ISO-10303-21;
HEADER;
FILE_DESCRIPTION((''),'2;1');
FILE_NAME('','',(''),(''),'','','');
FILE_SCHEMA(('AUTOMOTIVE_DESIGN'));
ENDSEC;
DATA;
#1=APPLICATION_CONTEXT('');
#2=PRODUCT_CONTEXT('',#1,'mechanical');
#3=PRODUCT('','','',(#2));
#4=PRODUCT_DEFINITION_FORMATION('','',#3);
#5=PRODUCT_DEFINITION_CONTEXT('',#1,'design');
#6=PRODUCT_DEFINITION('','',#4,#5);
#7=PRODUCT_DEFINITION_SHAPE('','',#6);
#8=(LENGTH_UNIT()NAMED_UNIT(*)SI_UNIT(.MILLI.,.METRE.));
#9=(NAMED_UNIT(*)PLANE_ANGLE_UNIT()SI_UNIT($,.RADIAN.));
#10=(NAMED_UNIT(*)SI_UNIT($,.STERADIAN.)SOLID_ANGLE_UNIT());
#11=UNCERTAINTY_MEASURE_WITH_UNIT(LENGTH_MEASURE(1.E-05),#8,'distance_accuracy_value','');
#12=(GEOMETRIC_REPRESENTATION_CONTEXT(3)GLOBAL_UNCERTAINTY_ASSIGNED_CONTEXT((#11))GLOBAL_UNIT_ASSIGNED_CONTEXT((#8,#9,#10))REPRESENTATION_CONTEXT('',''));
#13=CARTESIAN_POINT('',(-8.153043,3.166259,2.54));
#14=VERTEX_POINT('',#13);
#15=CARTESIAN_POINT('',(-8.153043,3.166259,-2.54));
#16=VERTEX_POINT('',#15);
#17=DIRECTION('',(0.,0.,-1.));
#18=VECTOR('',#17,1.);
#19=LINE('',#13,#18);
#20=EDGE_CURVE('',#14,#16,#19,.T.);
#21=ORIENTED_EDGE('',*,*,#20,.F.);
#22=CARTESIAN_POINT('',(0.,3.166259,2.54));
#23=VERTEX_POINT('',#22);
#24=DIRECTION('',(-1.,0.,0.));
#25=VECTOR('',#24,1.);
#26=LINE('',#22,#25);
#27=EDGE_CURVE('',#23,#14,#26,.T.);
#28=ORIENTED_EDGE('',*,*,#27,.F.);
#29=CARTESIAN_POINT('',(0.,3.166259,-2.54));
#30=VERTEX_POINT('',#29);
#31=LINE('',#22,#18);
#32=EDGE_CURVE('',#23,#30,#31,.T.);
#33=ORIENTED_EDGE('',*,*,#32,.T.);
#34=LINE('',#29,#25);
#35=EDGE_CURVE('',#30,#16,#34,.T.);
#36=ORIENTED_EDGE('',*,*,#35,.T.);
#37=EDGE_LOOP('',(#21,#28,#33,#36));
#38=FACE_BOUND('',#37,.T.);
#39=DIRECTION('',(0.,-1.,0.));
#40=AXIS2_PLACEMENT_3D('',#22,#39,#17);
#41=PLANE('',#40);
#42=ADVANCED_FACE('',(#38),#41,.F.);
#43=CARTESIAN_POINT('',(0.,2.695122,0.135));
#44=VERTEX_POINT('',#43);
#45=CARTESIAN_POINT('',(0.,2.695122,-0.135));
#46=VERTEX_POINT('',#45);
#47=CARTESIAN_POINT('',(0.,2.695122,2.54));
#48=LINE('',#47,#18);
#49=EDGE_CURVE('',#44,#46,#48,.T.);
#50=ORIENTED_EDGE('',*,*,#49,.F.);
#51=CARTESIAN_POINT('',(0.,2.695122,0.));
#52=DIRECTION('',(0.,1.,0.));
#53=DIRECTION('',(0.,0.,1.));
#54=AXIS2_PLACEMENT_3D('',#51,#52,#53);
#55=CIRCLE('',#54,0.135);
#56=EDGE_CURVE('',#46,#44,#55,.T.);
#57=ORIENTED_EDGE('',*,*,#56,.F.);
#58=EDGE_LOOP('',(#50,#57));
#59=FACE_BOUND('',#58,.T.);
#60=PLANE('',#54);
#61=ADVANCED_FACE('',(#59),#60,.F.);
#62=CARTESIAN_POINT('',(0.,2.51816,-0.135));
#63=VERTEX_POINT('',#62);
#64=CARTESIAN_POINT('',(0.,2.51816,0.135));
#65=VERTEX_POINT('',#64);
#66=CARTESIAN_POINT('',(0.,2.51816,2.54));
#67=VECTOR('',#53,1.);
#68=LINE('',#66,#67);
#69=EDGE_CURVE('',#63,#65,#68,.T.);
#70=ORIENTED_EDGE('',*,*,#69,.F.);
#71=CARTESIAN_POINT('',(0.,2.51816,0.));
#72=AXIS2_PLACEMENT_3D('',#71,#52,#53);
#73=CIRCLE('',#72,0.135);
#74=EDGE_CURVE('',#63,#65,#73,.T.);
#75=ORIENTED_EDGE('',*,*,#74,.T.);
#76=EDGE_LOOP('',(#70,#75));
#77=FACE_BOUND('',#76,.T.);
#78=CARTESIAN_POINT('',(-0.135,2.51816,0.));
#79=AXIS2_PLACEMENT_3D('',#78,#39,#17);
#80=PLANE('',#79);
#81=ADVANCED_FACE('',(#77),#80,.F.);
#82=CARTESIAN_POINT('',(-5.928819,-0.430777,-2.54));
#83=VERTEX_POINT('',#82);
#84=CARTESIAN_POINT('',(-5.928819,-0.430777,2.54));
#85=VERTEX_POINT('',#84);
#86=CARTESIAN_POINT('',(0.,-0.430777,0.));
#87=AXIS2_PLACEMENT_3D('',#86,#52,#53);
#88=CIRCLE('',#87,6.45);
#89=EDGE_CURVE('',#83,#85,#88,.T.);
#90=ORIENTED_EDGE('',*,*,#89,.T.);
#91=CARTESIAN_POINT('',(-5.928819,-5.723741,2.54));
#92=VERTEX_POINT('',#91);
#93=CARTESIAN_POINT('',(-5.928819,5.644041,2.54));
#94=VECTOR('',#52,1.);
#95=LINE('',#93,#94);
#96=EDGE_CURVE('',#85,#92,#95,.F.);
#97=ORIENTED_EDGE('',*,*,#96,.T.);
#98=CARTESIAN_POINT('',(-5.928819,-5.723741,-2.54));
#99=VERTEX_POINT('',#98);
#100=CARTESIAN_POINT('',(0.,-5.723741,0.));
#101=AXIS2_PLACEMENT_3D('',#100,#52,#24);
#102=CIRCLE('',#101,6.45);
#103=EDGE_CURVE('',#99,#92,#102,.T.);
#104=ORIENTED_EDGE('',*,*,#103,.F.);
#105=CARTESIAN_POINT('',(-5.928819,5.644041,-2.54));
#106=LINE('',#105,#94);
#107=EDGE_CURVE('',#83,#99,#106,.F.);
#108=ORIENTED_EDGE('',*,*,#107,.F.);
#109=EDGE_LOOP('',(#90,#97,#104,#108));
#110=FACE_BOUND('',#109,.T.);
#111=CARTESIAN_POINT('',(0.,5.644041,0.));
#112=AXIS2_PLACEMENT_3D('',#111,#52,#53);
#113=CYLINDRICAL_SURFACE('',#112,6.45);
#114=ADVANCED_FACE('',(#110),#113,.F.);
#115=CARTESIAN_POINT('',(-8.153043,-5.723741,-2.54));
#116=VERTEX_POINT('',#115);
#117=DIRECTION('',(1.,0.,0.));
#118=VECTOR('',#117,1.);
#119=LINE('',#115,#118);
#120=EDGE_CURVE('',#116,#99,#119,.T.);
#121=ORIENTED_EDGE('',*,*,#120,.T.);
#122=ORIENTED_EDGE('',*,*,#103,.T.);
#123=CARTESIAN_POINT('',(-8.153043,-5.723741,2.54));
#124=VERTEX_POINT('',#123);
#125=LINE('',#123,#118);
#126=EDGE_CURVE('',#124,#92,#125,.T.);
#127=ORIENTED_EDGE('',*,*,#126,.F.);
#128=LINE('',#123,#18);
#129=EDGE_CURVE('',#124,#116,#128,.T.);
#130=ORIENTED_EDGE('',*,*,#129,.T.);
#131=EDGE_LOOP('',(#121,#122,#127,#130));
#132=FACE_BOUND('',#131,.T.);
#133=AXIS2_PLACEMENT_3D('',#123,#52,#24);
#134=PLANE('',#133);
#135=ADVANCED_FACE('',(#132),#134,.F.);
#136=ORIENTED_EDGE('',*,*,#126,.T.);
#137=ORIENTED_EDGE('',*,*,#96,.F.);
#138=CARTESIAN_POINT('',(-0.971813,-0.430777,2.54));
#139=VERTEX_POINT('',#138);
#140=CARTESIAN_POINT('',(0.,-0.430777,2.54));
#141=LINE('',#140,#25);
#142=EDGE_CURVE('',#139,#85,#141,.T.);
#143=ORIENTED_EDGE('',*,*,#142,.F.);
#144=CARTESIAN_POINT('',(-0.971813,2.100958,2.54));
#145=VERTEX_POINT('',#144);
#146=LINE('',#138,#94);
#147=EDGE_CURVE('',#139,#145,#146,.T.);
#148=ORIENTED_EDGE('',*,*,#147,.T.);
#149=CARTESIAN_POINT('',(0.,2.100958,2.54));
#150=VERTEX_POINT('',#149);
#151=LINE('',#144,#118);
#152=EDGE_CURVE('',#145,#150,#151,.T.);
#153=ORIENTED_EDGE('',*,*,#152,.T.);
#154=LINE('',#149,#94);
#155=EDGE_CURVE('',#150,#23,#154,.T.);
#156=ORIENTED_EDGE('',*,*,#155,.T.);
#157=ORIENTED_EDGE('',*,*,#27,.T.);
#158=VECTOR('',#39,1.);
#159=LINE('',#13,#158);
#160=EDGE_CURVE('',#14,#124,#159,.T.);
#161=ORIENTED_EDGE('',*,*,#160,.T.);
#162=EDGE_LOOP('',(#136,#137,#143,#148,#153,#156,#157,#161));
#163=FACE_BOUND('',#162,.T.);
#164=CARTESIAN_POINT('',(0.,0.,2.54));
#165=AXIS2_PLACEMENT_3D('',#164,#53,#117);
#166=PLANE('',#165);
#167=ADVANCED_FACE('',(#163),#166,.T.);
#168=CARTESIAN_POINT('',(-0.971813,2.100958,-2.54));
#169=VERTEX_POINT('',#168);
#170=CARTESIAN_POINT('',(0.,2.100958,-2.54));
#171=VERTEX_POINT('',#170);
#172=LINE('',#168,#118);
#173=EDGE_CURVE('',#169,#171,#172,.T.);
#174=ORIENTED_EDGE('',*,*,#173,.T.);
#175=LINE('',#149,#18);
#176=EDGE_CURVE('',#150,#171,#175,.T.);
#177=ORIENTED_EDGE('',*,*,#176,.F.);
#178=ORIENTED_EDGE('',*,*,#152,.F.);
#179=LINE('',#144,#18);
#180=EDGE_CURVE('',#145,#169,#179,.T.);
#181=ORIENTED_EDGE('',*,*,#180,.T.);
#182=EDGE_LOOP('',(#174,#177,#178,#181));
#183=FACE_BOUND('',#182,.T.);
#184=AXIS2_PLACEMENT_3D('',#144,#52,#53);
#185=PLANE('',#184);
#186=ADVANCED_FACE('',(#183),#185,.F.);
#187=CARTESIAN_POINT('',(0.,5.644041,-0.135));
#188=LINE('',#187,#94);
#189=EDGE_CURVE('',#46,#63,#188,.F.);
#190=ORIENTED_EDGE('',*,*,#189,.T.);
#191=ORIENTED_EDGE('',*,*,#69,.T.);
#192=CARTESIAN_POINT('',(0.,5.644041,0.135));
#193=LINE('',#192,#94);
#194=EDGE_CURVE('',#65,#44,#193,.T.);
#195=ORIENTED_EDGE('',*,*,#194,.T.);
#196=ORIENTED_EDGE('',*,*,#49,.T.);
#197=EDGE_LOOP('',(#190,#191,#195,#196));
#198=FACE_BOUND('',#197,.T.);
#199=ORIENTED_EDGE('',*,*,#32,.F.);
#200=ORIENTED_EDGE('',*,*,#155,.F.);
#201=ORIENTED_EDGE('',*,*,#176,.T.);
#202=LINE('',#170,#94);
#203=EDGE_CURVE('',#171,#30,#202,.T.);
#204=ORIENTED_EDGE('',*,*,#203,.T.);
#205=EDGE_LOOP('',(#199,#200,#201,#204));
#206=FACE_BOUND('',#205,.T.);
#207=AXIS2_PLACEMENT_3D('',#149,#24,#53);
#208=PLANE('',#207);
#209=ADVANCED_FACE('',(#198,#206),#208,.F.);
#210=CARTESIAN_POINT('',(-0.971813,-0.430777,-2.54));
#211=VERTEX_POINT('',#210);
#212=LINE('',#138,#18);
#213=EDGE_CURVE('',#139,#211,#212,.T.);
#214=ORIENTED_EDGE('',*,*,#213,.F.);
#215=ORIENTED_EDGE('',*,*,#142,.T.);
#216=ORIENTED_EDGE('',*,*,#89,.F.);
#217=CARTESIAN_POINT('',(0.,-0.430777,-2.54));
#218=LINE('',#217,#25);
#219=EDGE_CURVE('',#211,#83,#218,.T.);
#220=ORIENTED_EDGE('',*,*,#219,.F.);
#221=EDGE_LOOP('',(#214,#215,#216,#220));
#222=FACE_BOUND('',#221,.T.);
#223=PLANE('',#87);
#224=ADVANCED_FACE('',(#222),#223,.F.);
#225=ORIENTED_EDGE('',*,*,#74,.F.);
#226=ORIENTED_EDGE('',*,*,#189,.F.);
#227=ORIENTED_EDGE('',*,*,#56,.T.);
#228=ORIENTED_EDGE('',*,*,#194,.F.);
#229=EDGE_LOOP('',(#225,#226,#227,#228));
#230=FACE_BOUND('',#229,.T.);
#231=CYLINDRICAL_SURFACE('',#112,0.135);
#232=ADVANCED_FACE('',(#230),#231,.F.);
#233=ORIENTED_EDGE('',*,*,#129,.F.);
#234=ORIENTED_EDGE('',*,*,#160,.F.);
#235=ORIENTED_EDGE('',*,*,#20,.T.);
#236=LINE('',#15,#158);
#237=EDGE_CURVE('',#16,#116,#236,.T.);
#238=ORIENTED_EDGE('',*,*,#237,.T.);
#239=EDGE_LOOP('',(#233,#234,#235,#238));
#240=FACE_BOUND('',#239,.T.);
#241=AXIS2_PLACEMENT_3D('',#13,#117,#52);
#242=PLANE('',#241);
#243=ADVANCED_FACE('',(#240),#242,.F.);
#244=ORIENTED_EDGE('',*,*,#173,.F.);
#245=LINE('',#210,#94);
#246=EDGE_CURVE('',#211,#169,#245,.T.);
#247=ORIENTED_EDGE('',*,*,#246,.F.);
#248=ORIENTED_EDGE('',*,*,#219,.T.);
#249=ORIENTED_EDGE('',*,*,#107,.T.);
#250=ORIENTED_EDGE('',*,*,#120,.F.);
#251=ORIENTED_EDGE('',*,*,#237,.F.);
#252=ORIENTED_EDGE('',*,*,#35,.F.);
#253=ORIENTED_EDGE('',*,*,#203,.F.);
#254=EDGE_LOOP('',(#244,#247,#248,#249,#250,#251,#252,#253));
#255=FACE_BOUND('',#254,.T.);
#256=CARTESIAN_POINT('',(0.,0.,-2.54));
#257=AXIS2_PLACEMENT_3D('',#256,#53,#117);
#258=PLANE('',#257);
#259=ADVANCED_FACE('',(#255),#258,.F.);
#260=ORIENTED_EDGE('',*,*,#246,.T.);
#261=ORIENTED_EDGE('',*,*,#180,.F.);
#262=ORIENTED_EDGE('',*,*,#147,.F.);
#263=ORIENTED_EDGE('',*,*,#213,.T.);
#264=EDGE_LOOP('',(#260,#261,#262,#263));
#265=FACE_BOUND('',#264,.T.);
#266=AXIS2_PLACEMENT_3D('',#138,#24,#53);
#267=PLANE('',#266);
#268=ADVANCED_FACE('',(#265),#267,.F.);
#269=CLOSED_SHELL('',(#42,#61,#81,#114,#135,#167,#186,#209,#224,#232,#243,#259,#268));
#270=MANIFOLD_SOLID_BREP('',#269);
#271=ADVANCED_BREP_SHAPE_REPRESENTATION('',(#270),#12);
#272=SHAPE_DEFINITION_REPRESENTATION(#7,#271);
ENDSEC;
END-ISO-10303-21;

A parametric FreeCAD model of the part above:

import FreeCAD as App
import Part
import Sketcher
Q = App.Units.Quantity

doc = App.newDocument("Part")
params = doc.addObject("Spreadsheet::Sheet", "Params")
for row, (alias, value) in enumerate([
    ("sketch1_height", "0.35 in"),
    ("pad1_length", "0.2 in"),
    ("groove_angle", "360 deg"),
], start=1):
    params.set(f"A{row}", alias)
    params.set(f"B{row}", "=" + value)
    params.setAlias(f"B{row}", alias)

body = doc.addObject("PartDesign::Body", "Body")

# Sketch on XY plane
sketch1 = body.newObject("Sketcher::SketchObject", "Sketch")
sketch1.AttachmentSupport = (doc.getObject("XY_Plane"), [""])
sketch1.MapMode = "FlatFace"
sketch1.addGeometry(Part.LineSegment(App.Vector(0, 3.166259, 0), App.Vector(-8.153043, 3.166259, 0)), False)
sketch1.addGeometry(Part.LineSegment(App.Vector(-8.153043, 3.166259, 0), App.Vector(-8.153043, -5.723741, 0)), False)
sketch1.addGeometry(Part.LineSegment(App.Vector(-8.153043, -5.723741, 0), App.Vector(0, -5.723741, 0)), False)
sketch1.addGeometry(Part.LineSegment(App.Vector(0, -5.723741, 0), App.Vector(0, -0.430777, 0)), False)
sketch1.addGeometry(Part.LineSegment(App.Vector(0, -0.430777, 0), App.Vector(-0.971813, -0.430777, 0)), False)
sketch1.addGeometry(Part.LineSegment(App.Vector(-0.971813, -0.430777, 0), App.Vector(-0.971813, 2.100958, 0)), False)
sketch1.addGeometry(Part.LineSegment(App.Vector(-0.971813, 2.100958, 0), App.Vector(0, 2.100958, 0)), False)
sketch1.addGeometry(Part.LineSegment(App.Vector(0, 2.100958, 0), App.Vector(0, 3.166259, 0)), False)
sketch1.addConstraint(Sketcher.Constraint("Coincident", 0, 2, 1, 1))
sketch1.addConstraint(Sketcher.Constraint("Coincident", 1, 2, 2, 1))
sketch1.addConstraint(Sketcher.Constraint("Coincident", 2, 2, 3, 1))
sketch1.addConstraint(Sketcher.Constraint("Coincident", 3, 2, 4, 1))
sketch1.addConstraint(Sketcher.Constraint("Coincident", 4, 2, 5, 1))
sketch1.addConstraint(Sketcher.Constraint("Coincident", 5, 2, 6, 1))
sketch1.addConstraint(Sketcher.Constraint("Coincident", 6, 2, 7, 1))
sketch1.addConstraint(Sketcher.Constraint("Coincident", 7, 2, 0, 1))
sketch1.addConstraint(Sketcher.Constraint("Horizontal", 0))
sketch1.addConstraint(Sketcher.Constraint("Vertical", 1))
sketch1.addConstraint(Sketcher.Constraint("Horizontal", 2))
sketch1.addConstraint(Sketcher.Constraint("Vertical", 3))
sketch1.addConstraint(Sketcher.Constraint("Horizontal", 4))
sketch1.addConstraint(Sketcher.Constraint("Vertical", 5))
sketch1.addConstraint(Sketcher.Constraint("Horizontal", 6))
sketch1.addConstraint(Sketcher.Constraint("Vertical", 7))
sketch1.addConstraint(Sketcher.Constraint("PointOnObject", 2, 2, -2))
sketch1.addConstraint(Sketcher.Constraint("PointOnObject", 6, 2, -2))
sketch1.addConstraint(Sketcher.Constraint("DistanceY", 1, 2, 1, 1, Q("0.35 in")))
sketch1.addConstraint(Sketcher.Constraint("DistanceY", 7, 1, 7, 2, 1.065301))
sketch1.addConstraint(Sketcher.Constraint("DistanceX", 0, 2, 0, 1, 8.153043))
sketch1.addConstraint(Sketcher.Constraint("DistanceX", 4, 2, 4, 1, 0.971813))
sketch1.addConstraint(Sketcher.Constraint("DistanceY", 3, 1, 3, 2, 5.292964))
sketch1.addConstraint(Sketcher.Constraint("DistanceY", -1, 1, 0, 2, 3.166259))
sketch1.setExpression("Constraints[18]", "Params.sketch1_height")
pad1 = body.newObject("PartDesign::Pad", "Pad")
pad1.Profile = sketch1
pad1.setExpression("Length", "Params.pad1_length")
pad1.Midplane = True

# Sketch on XY plane
sketch2 = body.newObject("Sketcher::SketchObject", "Sketch001")
sketch2.AttachmentSupport = (doc.getObject("XY_Plane"), [""])
sketch2.MapMode = "FlatFace"
sketch2.addGeometry(Part.LineSegment(App.Vector(-0.135, 2.695122, 0), App.Vector(-0.135, 2.51816, 0)), False)
sketch2.addGeometry(Part.LineSegment(App.Vector(-0.135, 2.51816, 0), App.Vector(0, 2.51816, 0)), False)
sketch2.addGeometry(Part.LineSegment(App.Vector(0, 2.51816, 0), App.Vector(0, 2.695122, 0)), False)
sketch2.addGeometry(Part.LineSegment(App.Vector(0, 2.695122, 0), App.Vector(-0.135, 2.695122, 0)), False)
sketch2.addGeometry(Part.LineSegment(App.Vector(-6.45, -0.430777, 0), App.Vector(-6.45, -5.791423, 0)), False)
sketch2.addGeometry(Part.LineSegment(App.Vector(-6.45, -5.791423, 0), App.Vector(0, -5.791423, 0)), False)
sketch2.addGeometry(Part.LineSegment(App.Vector(0, -5.791423, 0), App.Vector(0, -0.430777, 0)), False)
sketch2.addGeometry(Part.LineSegment(App.Vector(0, -0.430777, 0), App.Vector(-6.45, -0.430777, 0)), False)
sketch2.addConstraint(Sketcher.Constraint("Coincident", 0, 2, 1, 1))
sketch2.addConstraint(Sketcher.Constraint("Coincident", 1, 2, 2, 1))
sketch2.addConstraint(Sketcher.Constraint("Coincident", 2, 2, 3, 1))
sketch2.addConstraint(Sketcher.Constraint("Coincident", 3, 2, 0, 1))
sketch2.addConstraint(Sketcher.Constraint("Coincident", 4, 2, 5, 1))
sketch2.addConstraint(Sketcher.Constraint("Coincident", 5, 2, 6, 1))
sketch2.addConstraint(Sketcher.Constraint("Coincident", 6, 2, 7, 1))
sketch2.addConstraint(Sketcher.Constraint("Coincident", 7, 2, 4, 1))
sketch2.addConstraint(Sketcher.Constraint("Vertical", 0))
sketch2.addConstraint(Sketcher.Constraint("Horizontal", 1))
sketch2.addConstraint(Sketcher.Constraint("Vertical", 2))
sketch2.addConstraint(Sketcher.Constraint("Horizontal", 3))
sketch2.addConstraint(Sketcher.Constraint("Vertical", 4))
sketch2.addConstraint(Sketcher.Constraint("Horizontal", 5))
sketch2.addConstraint(Sketcher.Constraint("Vertical", 6))
sketch2.addConstraint(Sketcher.Constraint("Horizontal", 7))
sketch2.addConstraint(Sketcher.Constraint("PointOnObject", 1, 2, -2))
sketch2.addConstraint(Sketcher.Constraint("PointOnObject", 5, 2, -2))
sketch2.addConstraint(Sketcher.Constraint("DistanceX", 1, 1, 1, 2, 0.135))
sketch2.addConstraint(Sketcher.Constraint("DistanceX", 5, 1, 5, 2, 6.45))
sketch2.addConstraint(Sketcher.Constraint("DistanceY", 6, 2, 1, 2, Q("0.1160999 in")))
sketch2.addConstraint(Sketcher.Constraint("DistanceY", 0, 2, 0, 1, 0.176962))
sketch2.addConstraint(Sketcher.Constraint("DistanceY", 4, 2, 4, 1, 5.360645))
sketch2.addConstraint(Sketcher.Constraint("DistanceY", -1, 1, 0, 2, 2.51816))
groove = body.newObject("PartDesign::Groove", "Groove")
groove.Profile = sketch2
groove.ReferenceAxis = (sketch2, ["V_Axis"])
groove.setExpression("Angle", "Params.groove_angle")

doc.recompute()
